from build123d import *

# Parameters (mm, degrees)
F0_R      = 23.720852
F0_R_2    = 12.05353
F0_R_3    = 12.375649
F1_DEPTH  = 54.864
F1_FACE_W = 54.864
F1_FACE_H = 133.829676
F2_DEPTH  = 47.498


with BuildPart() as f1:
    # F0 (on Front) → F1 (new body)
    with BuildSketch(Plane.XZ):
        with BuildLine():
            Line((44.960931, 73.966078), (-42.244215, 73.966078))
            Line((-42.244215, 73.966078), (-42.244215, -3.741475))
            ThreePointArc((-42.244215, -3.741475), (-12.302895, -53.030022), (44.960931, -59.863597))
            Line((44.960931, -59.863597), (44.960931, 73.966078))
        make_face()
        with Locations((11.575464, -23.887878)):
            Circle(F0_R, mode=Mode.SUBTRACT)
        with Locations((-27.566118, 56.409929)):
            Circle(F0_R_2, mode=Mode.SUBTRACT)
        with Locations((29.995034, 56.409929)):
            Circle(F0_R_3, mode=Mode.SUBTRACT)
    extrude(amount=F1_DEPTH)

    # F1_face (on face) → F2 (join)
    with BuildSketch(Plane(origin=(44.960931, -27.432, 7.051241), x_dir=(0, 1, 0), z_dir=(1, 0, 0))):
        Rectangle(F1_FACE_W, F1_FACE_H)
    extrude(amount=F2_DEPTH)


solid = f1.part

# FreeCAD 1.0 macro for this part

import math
import FreeCAD as App
import Part
import Sketcher
from FreeCAD import Vector
Q = App.Units.Quantity

doc = App.newDocument("Part")
body = doc.addObject("PartDesign::Body", "Body")

# Sketch on XZ plane
sketch1 = doc.addObject("Sketcher::SketchObject", "Sketch")
body.addObject(sketch1)
sketch1.AttachmentSupport = (doc.XZ_Plane, [""])
sketch1.MapMode = "FlatFace"
sketch1.addGeometry(Part.LineSegment(Vector(44.960931, 73.966078, 0), Vector(-42.244215, 73.966078, 0)), False)
sketch1.addGeometry(Part.LineSegment(Vector(-42.244215, 73.966078, 0), Vector(-42.244215, -3.741475, 0)), False)
sketch1.addGeometry(Part.ArcOfCircle(Part.Circle(Vector(23.347311, 2.364916, 0), Vector(0, 0, 1), 65.875157), math.radians(-174.681251), math.radians(-70.846524)), False)
sketch1.addGeometry(Part.LineSegment(Vector(44.960931, -59.863597, 0), Vector(44.960931, 73.966078, 0)), False)
sketch1.addGeometry(Part.Circle(Vector(11.575464, -23.887878, 0), Vector(0, 0, 1), 23.720852), False)
sketch1.addGeometry(Part.Circle(Vector(-27.566118, 56.409929, 0), Vector(0, 0, 1), 12.05353), False)
sketch1.addGeometry(Part.Circle(Vector(29.995034, 56.409929, 0), Vector(0, 0, 1), 12.375649), False)
sketch1.addConstraint(Sketcher.Constraint("Coincident", 0, 2, 1, 1))
sketch1.addConstraint(Sketcher.Constraint("Coincident", 1, 2, 2, 1))
sketch1.addConstraint(Sketcher.Constraint("Coincident", 2, 2, 3, 1))
sketch1.addConstraint(Sketcher.Constraint("Coincident", 3, 2, 0, 1))
sketch1.addConstraint(Sketcher.Constraint("Horizontal", 0))
sketch1.addConstraint(Sketcher.Constraint("Vertical", 1))
sketch1.addConstraint(Sketcher.Constraint("Vertical", 3))
sketch1.addConstraint(Sketcher.Constraint("Horizontal", 5, 3, 6, 3))
sketch1.addConstraint(Sketcher.Constraint("Diameter", 5, 24.10706))
sketch1.addConstraint(Sketcher.Constraint("Diameter", 4, 47.441704))
sketch1.addConstraint(Sketcher.Constraint("Diameter", 6, 24.751298))
sketch1.addConstraint(Sketcher.Constraint("Radius", 2, 65.875157))
sketch1.addConstraint(Sketcher.Constraint("DistanceX", 0, 2, 0, 1, 87.205146))
sketch1.addConstraint(Sketcher.Constraint("DistanceY", 1, 2, 1, 1, 77.707553))
sketch1.addConstraint(Sketcher.Constraint("DistanceY", 3, 1, 3, 2, 133.829675))
sketch1.addConstraint(Sketcher.Constraint("DistanceX", -1, 1, 2, 3, 23.347311))
sketch1.addConstraint(Sketcher.Constraint("DistanceY", 4, 3, -1, 1, 23.887878))
sketch1.addConstraint(Sketcher.Constraint("DistanceY", -1, 1, 5, 3, 56.409929))
sketch1.addConstraint(Sketcher.Constraint("DistanceX", 5, 3, 2, 3, 50.913429))
sketch1.addConstraint(Sketcher.Constraint("DistanceX", 4, 3, 6, 3, 18.41957))
sketch1.addConstraint(Sketcher.Constraint("DistanceY", 5, 3, 0, 2, 17.556149))
sketch1.addConstraint(Sketcher.Constraint("DistanceX", 0, 2, 6, 3, 72.239249))
pad1 = doc.addObject("PartDesign::Pad", "Pad")
body.addObject(pad1)
pad1.Profile = sketch1
pad1.Length = Q("2.16 in")

# Sketch on YZ plane
sketch2 = doc.addObject("Sketcher::SketchObject", "Sketch001")
body.addObject(sketch2)
sketch2.AttachmentSupport = (doc.YZ_Plane, [""])
sketch2.MapMode = "FlatFace"
sketch2.AttachmentOffset = App.Placement(Vector(0, 0, 44.960931), App.Rotation())
sketch2.addGeometry(Part.LineSegment(Vector(-54.864, 73.966079, 0), Vector(-54.864, -59.863597, 0)), False)
sketch2.addGeometry(Part.LineSegment(Vector(-54.864, -59.863597, 0), Vector(0, -59.863597, 0)), False)
sketch2.addGeometry(Part.LineSegment(Vector(0, -59.863597, 0), Vector(0, 73.966079, 0)), False)
sketch2.addGeometry(Part.LineSegment(Vector(0, 73.966079, 0), Vector(-54.864, 73.966079, 0)), False)
sketch2.addConstraint(Sketcher.Constraint("Coincident", 0, 2, 1, 1))
sketch2.addConstraint(Sketcher.Constraint("Coincident", 1, 2, 2, 1))
sketch2.addConstraint(Sketcher.Constraint("Coincident", 2, 2, 3, 1))
sketch2.addConstraint(Sketcher.Constraint("Coincident", 3, 2, 0, 1))
sketch2.addConstraint(Sketcher.Constraint("Vertical", 0))
sketch2.addConstraint(Sketcher.Constraint("Horizontal", 1))
sketch2.addConstraint(Sketcher.Constraint("Vertical", 2))
sketch2.addConstraint(Sketcher.Constraint("Horizontal", 3))
sketch2.addConstraint(Sketcher.Constraint("PointOnObject", 1, 2, -2))
sketch2.addConstraint(Sketcher.Constraint("DistanceX", 1, 1, 1, 2, Q("2.16 in")))
sketch2.addConstraint(Sketcher.Constraint("DistanceY", 0, 2, 0, 1, 133.829676))
sketch2.addConstraint(Sketcher.Constraint("DistanceY", -1, 1, 2, 2, 73.966079))
pad2 = doc.addObject("PartDesign::Pad", "Pad001")
body.addObject(pad2)
pad2.Profile = sketch2
pad2.Length = Q("1.87 in")

doc.recompute()
